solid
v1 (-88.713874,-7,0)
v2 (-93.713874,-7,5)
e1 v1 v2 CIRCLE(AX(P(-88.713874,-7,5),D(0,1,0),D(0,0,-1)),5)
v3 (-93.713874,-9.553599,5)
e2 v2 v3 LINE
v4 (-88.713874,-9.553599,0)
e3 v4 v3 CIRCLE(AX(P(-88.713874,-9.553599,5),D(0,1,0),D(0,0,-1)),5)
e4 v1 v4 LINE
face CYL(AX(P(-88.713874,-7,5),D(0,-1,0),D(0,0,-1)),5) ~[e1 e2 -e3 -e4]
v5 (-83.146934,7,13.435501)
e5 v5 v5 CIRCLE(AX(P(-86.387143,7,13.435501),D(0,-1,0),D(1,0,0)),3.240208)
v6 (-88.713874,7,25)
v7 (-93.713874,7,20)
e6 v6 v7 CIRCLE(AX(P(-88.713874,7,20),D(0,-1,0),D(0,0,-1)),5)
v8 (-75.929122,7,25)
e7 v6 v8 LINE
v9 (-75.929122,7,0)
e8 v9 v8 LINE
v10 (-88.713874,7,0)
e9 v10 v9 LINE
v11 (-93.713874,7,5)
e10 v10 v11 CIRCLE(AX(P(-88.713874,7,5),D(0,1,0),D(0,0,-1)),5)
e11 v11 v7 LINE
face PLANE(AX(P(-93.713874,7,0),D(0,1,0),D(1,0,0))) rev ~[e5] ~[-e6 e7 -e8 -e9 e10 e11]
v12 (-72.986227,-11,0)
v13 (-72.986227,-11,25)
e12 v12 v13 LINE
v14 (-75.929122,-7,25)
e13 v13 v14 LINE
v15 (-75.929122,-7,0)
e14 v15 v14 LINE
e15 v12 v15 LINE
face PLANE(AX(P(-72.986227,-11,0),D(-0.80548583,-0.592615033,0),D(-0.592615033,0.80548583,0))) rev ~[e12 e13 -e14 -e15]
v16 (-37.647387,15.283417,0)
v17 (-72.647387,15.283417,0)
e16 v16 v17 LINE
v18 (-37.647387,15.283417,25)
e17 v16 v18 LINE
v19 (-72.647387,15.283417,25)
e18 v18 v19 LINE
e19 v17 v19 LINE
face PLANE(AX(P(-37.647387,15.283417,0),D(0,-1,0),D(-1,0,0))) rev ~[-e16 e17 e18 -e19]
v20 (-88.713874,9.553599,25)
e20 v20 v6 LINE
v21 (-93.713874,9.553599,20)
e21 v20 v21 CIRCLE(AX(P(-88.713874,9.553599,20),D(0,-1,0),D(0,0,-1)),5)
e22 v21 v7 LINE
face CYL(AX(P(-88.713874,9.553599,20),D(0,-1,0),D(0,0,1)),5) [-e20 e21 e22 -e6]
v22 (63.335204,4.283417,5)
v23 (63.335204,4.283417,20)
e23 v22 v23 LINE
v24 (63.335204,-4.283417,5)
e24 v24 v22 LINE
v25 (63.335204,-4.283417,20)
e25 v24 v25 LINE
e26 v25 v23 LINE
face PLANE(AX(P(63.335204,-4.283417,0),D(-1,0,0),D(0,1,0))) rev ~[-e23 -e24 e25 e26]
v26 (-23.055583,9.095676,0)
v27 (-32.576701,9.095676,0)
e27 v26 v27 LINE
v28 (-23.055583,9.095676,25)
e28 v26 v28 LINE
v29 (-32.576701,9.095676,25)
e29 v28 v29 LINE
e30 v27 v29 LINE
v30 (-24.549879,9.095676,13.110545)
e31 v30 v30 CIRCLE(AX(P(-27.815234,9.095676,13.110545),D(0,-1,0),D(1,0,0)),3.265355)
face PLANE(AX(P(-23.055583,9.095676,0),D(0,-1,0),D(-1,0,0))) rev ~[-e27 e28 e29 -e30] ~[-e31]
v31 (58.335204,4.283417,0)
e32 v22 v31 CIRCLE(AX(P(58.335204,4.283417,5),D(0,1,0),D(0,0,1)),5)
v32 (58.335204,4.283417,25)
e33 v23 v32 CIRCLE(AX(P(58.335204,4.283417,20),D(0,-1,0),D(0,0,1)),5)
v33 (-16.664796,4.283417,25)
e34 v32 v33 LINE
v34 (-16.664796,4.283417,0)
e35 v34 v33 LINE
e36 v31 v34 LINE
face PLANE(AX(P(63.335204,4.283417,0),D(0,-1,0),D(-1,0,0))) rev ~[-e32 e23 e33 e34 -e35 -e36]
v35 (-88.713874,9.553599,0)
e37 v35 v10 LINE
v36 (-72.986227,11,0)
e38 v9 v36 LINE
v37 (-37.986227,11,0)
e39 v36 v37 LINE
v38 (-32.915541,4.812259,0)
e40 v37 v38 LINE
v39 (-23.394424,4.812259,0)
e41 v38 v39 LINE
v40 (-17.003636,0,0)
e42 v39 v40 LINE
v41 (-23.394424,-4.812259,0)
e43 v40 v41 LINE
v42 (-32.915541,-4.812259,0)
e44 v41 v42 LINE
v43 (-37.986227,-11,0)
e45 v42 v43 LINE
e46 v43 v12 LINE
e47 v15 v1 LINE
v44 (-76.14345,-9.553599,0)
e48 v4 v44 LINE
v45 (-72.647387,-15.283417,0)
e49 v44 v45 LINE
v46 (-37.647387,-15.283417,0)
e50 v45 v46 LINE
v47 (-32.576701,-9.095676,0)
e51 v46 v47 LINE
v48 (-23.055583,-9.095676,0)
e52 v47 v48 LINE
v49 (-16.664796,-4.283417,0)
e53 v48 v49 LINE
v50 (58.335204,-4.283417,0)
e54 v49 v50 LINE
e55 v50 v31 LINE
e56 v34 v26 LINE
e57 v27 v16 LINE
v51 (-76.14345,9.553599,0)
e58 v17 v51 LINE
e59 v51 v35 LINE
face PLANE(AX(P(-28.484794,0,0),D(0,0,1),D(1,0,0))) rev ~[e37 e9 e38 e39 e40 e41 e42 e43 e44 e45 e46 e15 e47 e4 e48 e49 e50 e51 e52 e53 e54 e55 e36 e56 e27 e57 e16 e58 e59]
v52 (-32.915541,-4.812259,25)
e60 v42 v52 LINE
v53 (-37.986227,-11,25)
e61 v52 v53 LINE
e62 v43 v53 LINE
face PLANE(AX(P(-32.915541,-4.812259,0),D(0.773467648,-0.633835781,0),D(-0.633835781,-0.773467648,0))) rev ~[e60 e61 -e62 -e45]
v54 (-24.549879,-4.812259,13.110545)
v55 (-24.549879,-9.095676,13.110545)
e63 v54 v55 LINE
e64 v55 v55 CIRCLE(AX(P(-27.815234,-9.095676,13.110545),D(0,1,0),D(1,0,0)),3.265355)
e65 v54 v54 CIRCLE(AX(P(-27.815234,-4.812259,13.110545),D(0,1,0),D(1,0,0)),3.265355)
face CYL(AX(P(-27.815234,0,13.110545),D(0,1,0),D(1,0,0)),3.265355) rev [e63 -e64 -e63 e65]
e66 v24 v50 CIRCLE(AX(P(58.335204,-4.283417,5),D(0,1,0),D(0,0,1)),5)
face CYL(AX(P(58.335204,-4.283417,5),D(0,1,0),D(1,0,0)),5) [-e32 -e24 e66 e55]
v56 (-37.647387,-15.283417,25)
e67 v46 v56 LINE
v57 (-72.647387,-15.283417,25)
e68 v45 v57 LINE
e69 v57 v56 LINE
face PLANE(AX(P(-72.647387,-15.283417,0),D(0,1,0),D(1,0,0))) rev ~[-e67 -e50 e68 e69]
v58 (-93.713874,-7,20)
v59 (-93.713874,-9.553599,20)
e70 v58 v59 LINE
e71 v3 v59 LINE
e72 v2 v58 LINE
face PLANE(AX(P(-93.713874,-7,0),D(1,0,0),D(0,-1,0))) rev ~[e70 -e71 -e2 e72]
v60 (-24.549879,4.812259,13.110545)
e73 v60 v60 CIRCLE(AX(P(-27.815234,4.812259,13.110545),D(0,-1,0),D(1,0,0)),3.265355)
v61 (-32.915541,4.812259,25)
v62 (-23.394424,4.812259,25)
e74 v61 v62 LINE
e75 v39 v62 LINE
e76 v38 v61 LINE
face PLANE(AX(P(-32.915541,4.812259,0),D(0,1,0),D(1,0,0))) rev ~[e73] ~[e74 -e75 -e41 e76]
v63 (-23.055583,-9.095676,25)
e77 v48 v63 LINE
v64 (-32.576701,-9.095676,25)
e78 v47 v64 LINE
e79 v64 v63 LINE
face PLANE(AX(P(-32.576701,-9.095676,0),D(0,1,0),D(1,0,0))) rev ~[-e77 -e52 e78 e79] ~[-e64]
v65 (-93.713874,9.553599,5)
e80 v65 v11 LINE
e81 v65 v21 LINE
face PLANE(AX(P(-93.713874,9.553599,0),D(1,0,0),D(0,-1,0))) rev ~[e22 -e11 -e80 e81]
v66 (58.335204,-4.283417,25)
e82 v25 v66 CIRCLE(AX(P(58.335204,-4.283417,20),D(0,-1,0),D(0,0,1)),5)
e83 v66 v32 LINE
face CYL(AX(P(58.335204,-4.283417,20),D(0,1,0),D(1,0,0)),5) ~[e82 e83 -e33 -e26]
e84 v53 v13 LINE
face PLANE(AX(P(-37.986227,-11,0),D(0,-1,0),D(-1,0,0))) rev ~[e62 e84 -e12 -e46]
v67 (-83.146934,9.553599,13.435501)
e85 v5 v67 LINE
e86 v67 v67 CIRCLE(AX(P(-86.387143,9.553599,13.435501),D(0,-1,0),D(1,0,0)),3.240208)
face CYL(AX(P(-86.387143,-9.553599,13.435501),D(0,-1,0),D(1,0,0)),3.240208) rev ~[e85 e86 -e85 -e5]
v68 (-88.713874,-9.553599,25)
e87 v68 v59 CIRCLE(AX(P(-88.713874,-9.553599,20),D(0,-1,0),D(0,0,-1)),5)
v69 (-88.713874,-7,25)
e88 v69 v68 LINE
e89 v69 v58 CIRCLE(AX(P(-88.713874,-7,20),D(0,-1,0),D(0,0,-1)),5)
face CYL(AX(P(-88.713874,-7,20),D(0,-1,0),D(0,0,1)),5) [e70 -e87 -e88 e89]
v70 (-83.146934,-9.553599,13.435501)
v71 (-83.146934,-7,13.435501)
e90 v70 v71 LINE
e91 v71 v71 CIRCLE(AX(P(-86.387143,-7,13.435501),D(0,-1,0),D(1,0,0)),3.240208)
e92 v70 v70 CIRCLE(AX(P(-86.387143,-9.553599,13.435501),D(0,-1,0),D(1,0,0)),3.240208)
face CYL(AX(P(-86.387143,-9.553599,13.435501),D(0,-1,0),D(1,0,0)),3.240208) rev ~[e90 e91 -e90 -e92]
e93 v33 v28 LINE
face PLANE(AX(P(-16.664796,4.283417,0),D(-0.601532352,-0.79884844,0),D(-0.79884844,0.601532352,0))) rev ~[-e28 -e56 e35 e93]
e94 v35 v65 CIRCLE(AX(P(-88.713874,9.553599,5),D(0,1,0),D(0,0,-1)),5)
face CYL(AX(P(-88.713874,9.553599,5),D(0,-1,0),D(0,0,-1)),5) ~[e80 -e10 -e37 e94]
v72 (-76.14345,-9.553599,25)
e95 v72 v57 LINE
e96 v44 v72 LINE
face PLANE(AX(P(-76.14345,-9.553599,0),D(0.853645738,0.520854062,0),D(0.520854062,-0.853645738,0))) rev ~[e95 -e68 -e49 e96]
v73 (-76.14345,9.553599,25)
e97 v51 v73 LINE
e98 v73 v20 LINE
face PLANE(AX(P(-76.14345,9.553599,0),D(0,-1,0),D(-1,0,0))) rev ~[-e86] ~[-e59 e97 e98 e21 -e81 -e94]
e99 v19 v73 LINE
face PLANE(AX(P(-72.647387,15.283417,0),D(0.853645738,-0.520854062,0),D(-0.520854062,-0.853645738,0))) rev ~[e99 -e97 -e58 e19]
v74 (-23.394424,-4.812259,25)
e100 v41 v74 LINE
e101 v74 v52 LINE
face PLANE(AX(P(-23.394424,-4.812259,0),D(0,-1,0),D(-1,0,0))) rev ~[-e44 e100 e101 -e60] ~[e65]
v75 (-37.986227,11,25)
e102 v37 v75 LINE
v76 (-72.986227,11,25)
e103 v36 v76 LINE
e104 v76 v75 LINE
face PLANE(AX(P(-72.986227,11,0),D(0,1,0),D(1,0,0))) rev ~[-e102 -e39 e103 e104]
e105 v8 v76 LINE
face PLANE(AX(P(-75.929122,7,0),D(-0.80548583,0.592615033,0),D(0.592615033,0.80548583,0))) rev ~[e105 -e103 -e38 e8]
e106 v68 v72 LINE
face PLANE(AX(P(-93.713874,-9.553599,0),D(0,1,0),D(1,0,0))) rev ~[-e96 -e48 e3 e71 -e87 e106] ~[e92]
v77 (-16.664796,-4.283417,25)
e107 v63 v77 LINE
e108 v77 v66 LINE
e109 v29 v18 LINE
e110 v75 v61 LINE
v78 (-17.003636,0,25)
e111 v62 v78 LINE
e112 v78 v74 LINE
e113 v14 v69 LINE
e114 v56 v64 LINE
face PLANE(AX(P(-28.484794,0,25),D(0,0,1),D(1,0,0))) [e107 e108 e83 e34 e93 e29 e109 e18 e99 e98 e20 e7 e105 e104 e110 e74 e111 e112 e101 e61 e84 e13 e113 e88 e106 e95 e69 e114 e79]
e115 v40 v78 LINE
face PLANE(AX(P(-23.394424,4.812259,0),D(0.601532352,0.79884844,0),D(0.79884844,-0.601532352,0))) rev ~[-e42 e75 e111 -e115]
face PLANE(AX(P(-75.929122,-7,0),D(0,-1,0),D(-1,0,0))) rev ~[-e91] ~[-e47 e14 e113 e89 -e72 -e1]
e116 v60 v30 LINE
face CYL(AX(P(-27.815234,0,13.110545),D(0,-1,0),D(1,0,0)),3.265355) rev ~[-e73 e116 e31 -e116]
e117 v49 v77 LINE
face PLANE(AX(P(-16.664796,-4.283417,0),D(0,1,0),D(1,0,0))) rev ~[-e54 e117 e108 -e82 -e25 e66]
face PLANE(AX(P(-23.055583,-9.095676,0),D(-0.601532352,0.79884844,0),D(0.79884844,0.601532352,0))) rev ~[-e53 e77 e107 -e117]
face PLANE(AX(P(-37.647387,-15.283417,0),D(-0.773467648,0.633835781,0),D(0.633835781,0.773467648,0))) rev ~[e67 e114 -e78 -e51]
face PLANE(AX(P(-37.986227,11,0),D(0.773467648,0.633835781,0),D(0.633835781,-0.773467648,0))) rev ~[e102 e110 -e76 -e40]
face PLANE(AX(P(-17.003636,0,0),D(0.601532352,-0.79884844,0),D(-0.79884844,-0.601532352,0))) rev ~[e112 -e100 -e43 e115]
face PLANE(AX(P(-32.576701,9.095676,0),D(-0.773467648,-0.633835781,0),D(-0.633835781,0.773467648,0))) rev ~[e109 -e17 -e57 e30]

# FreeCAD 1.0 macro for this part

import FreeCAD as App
import Part
import Sketcher

V = App.Vector


def edges_at(feature, points):
    """Names of the edges that pass closest to the given points."""
    edges = feature.Shape.Edges
    near = lambda p: min(range(len(edges)), key=lambda i: edges[i].distToShape(Part.Vertex(*p))[0])
    return sorted({f"Edge{near(p) + 1}" for p in points})

doc = App.newDocument("Part")
params = doc.addObject("Spreadsheet::Sheet", "Params")
for row, (alias, value) in enumerate([
    ("sketch1_width", "80 mm"),
    ("sketch1_width2", "35 mm"),
    ("sketch1_length", "8 mm"),
    ("pad1_length", "25 mm"),
    ("fillet_radius", "5 mm"),
    ("fillet2_radius", "5 mm"),
], start=1):
    params.set(f"A{row}", alias)
    params.set(f"B{row}", "=" + value)
    params.setAlias(f"B{row}", alias)

body = doc.addObject("PartDesign::Body", "Body")

sketch1 = body.newObject("Sketcher::SketchObject", "Sketch")
sketch1.AttachmentSupport = (doc.getObject("XY_Plane"), [""])
sketch1.MapMode = "FlatFace"
sketch1.addGeometry(Part.LineSegment(V(-23.1, -9.1, 0), V(-16.7, -4.3, 0)), False)
sketch1.addGeometry(Part.LineSegment(V(-16.7, -4.3, 0), V(63.3, -4.3, 0)), False)
sketch1.addGeometry(Part.LineSegment(V(63.3, -4.3, 0), V(63.3, 4.3, 0)), False)
sketch1.addGeometry(Part.LineSegment(V(63.3, 4.3, 0), V(-16.7, 4.3, 0)), False)
sketch1.addGeometry(Part.LineSegment(V(-16.7, 4.3, 0), V(-23.1, 9.1, 0)), False)
sketch1.addGeometry(Part.LineSegment(V(-23.1, 9.1, 0), V(-32.6, 9.1, 0)), False)
sketch1.addGeometry(Part.LineSegment(V(-32.6, 9.1, 0), V(-37.6, 15.3, 0)), False)
sketch1.addGeometry(Part.LineSegment(V(-37.6, 15.3, 0), V(-72.6, 15.3, 0)), False)
sketch1.addGeometry(Part.LineSegment(V(-72.6, 15.3, 0), V(-76.1, 9.6, 0)), False)
sketch1.addGeometry(Part.LineSegment(V(-76.1, 9.6, 0), V(-93.7, 9.6, 0)), False)
sketch1.addGeometry(Part.LineSegment(V(-93.7, 9.6, 0), V(-93.7, 7, 0)), False)
sketch1.addGeometry(Part.LineSegment(V(-93.7, 7, 0), V(-75.9, 7, 0)), False)
sketch1.addGeometry(Part.LineSegment(V(-75.9, 7, 0), V(-73, 11, 0)), False)
sketch1.addGeometry(Part.LineSegment(V(-73, 11, 0), V(-38, 11, 0)), False)
sketch1.addGeometry(Part.LineSegment(V(-38, 11, 0), V(-32.9, 4.8, 0)), False)
sketch1.addGeometry(Part.LineSegment(V(-32.9, 4.8, 0), V(-23.4, 4.8, 0)), False)
sketch1.addGeometry(Part.LineSegment(V(-23.4, 4.8, 0), V(-17, 0, 0)), False)
sketch1.addGeometry(Part.LineSegment(V(-17, 0, 0), V(-23.4, -4.8, 0)), False)
sketch1.addGeometry(Part.LineSegment(V(-23.4, -4.8, 0), V(-32.9, -4.8, 0)), False)
sketch1.addGeometry(Part.LineSegment(V(-32.9, -4.8, 0), V(-38, -11, 0)), False)
sketch1.addGeometry(Part.LineSegment(V(-38, -11, 0), V(-73, -11, 0)), False)
sketch1.addGeometry(Part.LineSegment(V(-73, -11, 0), V(-75.9, -7, 0)), False)
sketch1.addGeometry(Part.LineSegment(V(-75.9, -7, 0), V(-93.7, -7, 0)), False)
sketch1.addGeometry(Part.LineSegment(V(-93.7, -7, 0), V(-93.7, -9.6, 0)), False)
sketch1.addGeometry(Part.LineSegment(V(-93.7, -9.6, 0), V(-76.1, -9.6, 0)), False)
sketch1.addGeometry(Part.LineSegment(V(-76.1, -9.6, 0), V(-72.6, -15.3, 0)), False)
sketch1.addGeometry(Part.LineSegment(V(-72.6, -15.3, 0), V(-37.6, -15.3, 0)), False)
sketch1.addGeometry(Part.LineSegment(V(-37.6, -15.3, 0), V(-32.6, -9.1, 0)), False)
sketch1.addGeometry(Part.LineSegment(V(-32.6, -9.1, 0), V(-23.1, -9.1, 0)), False)
sketch1.addConstraint(Sketcher.Constraint("Coincident", 0, 2, 1, 1))
sketch1.addConstraint(Sketcher.Constraint("Coincident", 1, 2, 2, 1))
sketch1.addConstraint(Sketcher.Constraint("Coincident", 2, 2, 3, 1))
sketch1.addConstraint(Sketcher.Constraint("Coincident", 3, 2, 4, 1))
sketch1.addConstraint(Sketcher.Constraint("Coincident", 4, 2, 5, 1))
sketch1.addConstraint(Sketcher.Constraint("Coincident", 5, 2, 6, 1))
sketch1.addConstraint(Sketcher.Constraint("Coincident", 6, 2, 7, 1))
sketch1.addConstraint(Sketcher.Constraint("Coincident", 7, 2, 8, 1))
sketch1.addConstraint(Sketcher.Constraint("Coincident", 8, 2, 9, 1))
sketch1.addConstraint(Sketcher.Constraint("Coincident", 9, 2, 10, 1))
sketch1.addConstraint(Sketcher.Constraint("Coincident", 10, 2, 11, 1))
sketch1.addConstraint(Sketcher.Constraint("Coincident", 11, 2, 12, 1))
sketch1.addConstraint(Sketcher.Constraint("Coincident", 12, 2, 13, 1))
sketch1.addConstraint(Sketcher.Constraint("Coincident", 13, 2, 14, 1))
sketch1.addConstraint(Sketcher.Constraint("Coincident", 14, 2, 15, 1))
sketch1.addConstraint(Sketcher.Constraint("Coincident", 15, 2, 16, 1))
sketch1.addConstraint(Sketcher.Constraint("Coincident", 16, 2, 17, 1))
sketch1.addConstraint(Sketcher.Constraint("Coincident", 17, 2, 18, 1))
sketch1.addConstraint(Sketcher.Constraint("Coincident", 18, 2, 19, 1))
sketch1.addConstraint(Sketcher.Constraint("Coincident", 19, 2, 20, 1))
sketch1.addConstraint(Sketcher.Constraint("Coincident", 20, 2, 21, 1))
sketch1.addConstraint(Sketcher.Constraint("Coincident", 21, 2, 22, 1))
sketch1.addConstraint(Sketcher.Constraint("Coincident", 22, 2, 23, 1))
sketch1.addConstraint(Sketcher.Constraint("Coincident", 23, 2, 24, 1))
sketch1.addConstraint(Sketcher.Constraint("Coincident", 24, 2, 25, 1))
sketch1.addConstraint(Sketcher.Constraint("Coincident", 25, 2, 26, 1))
sketch1.addConstraint(Sketcher.Constraint("Coincident", 26, 2, 27, 1))
sketch1.addConstraint(Sketcher.Constraint("Coincident", 27, 2, 28, 1))
sketch1.addConstraint(Sketcher.Constraint("Coincident", 28, 2, 0, 1))
sketch1.addConstraint(Sketcher.Constraint("Horizontal", 1))
sketch1.addConstraint(Sketcher.Constraint("Vertical", 2))
sketch1.addConstraint(Sketcher.Constraint("Horizontal", 3))
sketch1.addConstraint(Sketcher.Constraint("Horizontal", 5))
sketch1.addConstraint(Sketcher.Constraint("Horizontal", 7))
sketch1.addConstraint(Sketcher.Constraint("Horizontal", 9))
sketch1.addConstraint(Sketcher.Constraint("Vertical", 10))
sketch1.addConstraint(Sketcher.Constraint("Horizontal", 11))
sketch1.addConstraint(Sketcher.Constraint("Horizontal", 13))
sketch1.addConstraint(Sketcher.Constraint("Horizontal", 15))
sketch1.addConstraint(Sketcher.Constraint("Horizontal", 18))
sketch1.addConstraint(Sketcher.Constraint("Horizontal", 20))
sketch1.addConstraint(Sketcher.Constraint("Horizontal", 22))
sketch1.addConstraint(Sketcher.Constraint("Vertical", 23))
sketch1.addConstraint(Sketcher.Constraint("Horizontal", 24))
sketch1.addConstraint(Sketcher.Constraint("Horizontal", 26))
sketch1.addConstraint(Sketcher.Constraint("Horizontal", 28))
sketch1.addConstraint(Sketcher.Constraint("Symmetric", 0, 2, 3, 2, -1))
sketch1.addConstraint(Sketcher.Constraint("Symmetric", 15, 2, 17, 2, -1))
sketch1.addConstraint(Sketcher.Constraint("Symmetric", 13, 2, 19, 2, -1))
sketch1.addConstraint(Sketcher.Constraint("Symmetric", 11, 2, 21, 2, -1))
sketch1.addConstraint(Sketcher.Constraint("Symmetric", 9, 2, 23, 2, -1))
sketch1.addConstraint(Sketcher.Constraint("Symmetric", 7, 2, 25, 2, -1))
sketch1.addConstraint(Sketcher.Constraint("Symmetric", 5, 2, 27, 2, -1))
sketch1.addConstraint(Sketcher.Constraint("PointOnObject", 16, 2, -1))
sketch1.addConstraint(Sketcher.Constraint("Parallel", 6, 14))
sketch1.addConstraint(Sketcher.Constraint("Parallel", 4, 16))
sketch1.addConstraint(Sketcher.Constraint("Parallel", 0, 17))
sketch1.addConstraint(Sketcher.Constraint("Parallel", 19, 27))
sketch1.addConstraint(Sketcher.Constraint("Vertical", 14, 2, 18, 2))
sketch1.addConstraint(Sketcher.Constraint("Vertical", 12, 2, 20, 2))
sketch1.addConstraint(Sketcher.Constraint("Vertical", 8, 2, 24, 2))
sketch1.addConstraint(Sketcher.Constraint("Equal", 7, 13))
sketch1.addConstraint(Sketcher.Constraint("Equal", 5, 15))
sketch1.addConstraint(Sketcher.Constraint("Equal", 4, 6))
sketch1.addConstraint(Sketcher.Constraint("Equal", 6, 14))
sketch1.addConstraint(Sketcher.Constraint("Equal", 14, 16))
sketch1.addConstraint(Sketcher.Constraint("DistanceX", 1, 1, 1, 2, 80.0))
sketch1.addConstraint(Sketcher.Constraint("DistanceX", 7, 2, 7, 1, 35.0))
sketch1.addConstraint(Sketcher.Constraint("Distance", 0, 8.0))
sketch1.addConstraint(Sketcher.Constraint("DistanceY", -1, 1, 10, 2, 7.0))
sketch1.addConstraint(Sketcher.Constraint("DistanceY", -1, 1, 12, 2, 11.0))
sketch1.addConstraint(Sketcher.Constraint("DistanceY", 10, 2, 10, 1, 2.553599))
sketch1.addConstraint(Sketcher.Constraint("DistanceX", 5, 2, -1, 1, 32.576701))
sketch1.addConstraint(Sketcher.Constraint("DistanceX", 5, 2, 5, 1, 9.521117))
sketch1.addConstraint(Sketcher.Constraint("DistanceX", 9, 2, 9, 1, 17.570425))
sketch1.addConstraint(Sketcher.Constraint("DistanceX", 11, 1, 11, 2, 17.784752))
sketch1.addConstraint(Sketcher.Constraint("DistanceY", 2, 1, 2, 2, 8.566834))
sketch1.addConstraint(Sketcher.Constraint("DistanceX", 8, 2, -1, 1, 76.14345))
sketch1.addConstraint(Sketcher.Constraint("DistanceX", 14, 2, -1, 1, 32.915541))
sketch1.addConstraint(Sketcher.Constraint("DistanceY", -1, 1, 14, 2, 4.812259))
sketch1.setExpression("Constraints[66]", "Params.sketch1_width")
sketch1.setExpression("Constraints[67]", "Params.sketch1_width2")
sketch1.setExpression("Constraints[68]", "Params.sketch1_length")
pad1 = body.newObject("PartDesign::Pad", "Pad")
pad1.Profile = sketch1
pad1.setExpression("Length", "Params.pad1_length")
doc.recompute()

fillet = body.newObject("PartDesign::Fillet", "Fillet")
fillet.Base = (pad1, edges_at(pad1, [(63.335, 0, 25), (63.335, 0, 0)]))
fillet.setExpression("Radius", "Params.fillet_radius")
doc.recompute()

fillet2 = body.newObject("PartDesign::Fillet", "Fillet001")
fillet2.Base = (fillet, edges_at(fillet, [
    (-93.714, 8.277, 25),
    (-93.714, 8.277, 0),
    (-93.714, -8.277, 25),
    (-93.714, -8.277, 0),
]))
fillet2.setExpression("Radius", "Params.fillet2_radius")

sketch2 = body.newObject("Sketcher::SketchObject", "Sketch001")
sketch2.AttachmentSupport = (doc.getObject("XZ_Plane"), [""])
sketch2.MapMode = "FlatFace"
sketch2.AttachmentOffset = App.Placement(V(0, 0, 9.553599), App.Rotation())
sketch2.addGeometry(Part.Circle(V(-86.4, 13.4, 0), V(0, 0, 1), 3.2), False)
sketch2.addConstraint(Sketcher.Constraint("Diameter", 0, 6.480417))
sketch2.addConstraint(Sketcher.Constraint("DistanceY", -1, 1, 0, 3, 13.435501))
sketch2.addConstraint(Sketcher.Constraint("DistanceX", 0, 3, -1, 1, 86.387143))
pocket1 = body.newObject("PartDesign::Pocket", "Pocket")
pocket1.Profile = sketch2
pocket1.Type = "ThroughAll"
pocket1.Midplane = True

sketch3 = body.newObject("Sketcher::SketchObject", "Sketch002")
sketch3.AttachmentSupport = (doc.getObject("XZ_Plane"), [""])
sketch3.MapMode = "FlatFace"
sketch3.addGeometry(Part.Circle(V(-27.8, 13.1, 0), V(0, 0, 1), 3.3), False)
sketch3.addConstraint(Sketcher.Constraint("Diameter", 0, 6.53071))
sketch3.addConstraint(Sketcher.Constraint("DistanceX", 0, 3, -1, 1, 27.815234))
sketch3.addConstraint(Sketcher.Constraint("DistanceY", -1, 1, 0, 3, 13.110545))
pocket2 = body.newObject("PartDesign::Pocket", "Pocket001")
pocket2.Profile = sketch3
pocket2.Type = "ThroughAll"
pocket2.Midplane = True

doc.recompute()
